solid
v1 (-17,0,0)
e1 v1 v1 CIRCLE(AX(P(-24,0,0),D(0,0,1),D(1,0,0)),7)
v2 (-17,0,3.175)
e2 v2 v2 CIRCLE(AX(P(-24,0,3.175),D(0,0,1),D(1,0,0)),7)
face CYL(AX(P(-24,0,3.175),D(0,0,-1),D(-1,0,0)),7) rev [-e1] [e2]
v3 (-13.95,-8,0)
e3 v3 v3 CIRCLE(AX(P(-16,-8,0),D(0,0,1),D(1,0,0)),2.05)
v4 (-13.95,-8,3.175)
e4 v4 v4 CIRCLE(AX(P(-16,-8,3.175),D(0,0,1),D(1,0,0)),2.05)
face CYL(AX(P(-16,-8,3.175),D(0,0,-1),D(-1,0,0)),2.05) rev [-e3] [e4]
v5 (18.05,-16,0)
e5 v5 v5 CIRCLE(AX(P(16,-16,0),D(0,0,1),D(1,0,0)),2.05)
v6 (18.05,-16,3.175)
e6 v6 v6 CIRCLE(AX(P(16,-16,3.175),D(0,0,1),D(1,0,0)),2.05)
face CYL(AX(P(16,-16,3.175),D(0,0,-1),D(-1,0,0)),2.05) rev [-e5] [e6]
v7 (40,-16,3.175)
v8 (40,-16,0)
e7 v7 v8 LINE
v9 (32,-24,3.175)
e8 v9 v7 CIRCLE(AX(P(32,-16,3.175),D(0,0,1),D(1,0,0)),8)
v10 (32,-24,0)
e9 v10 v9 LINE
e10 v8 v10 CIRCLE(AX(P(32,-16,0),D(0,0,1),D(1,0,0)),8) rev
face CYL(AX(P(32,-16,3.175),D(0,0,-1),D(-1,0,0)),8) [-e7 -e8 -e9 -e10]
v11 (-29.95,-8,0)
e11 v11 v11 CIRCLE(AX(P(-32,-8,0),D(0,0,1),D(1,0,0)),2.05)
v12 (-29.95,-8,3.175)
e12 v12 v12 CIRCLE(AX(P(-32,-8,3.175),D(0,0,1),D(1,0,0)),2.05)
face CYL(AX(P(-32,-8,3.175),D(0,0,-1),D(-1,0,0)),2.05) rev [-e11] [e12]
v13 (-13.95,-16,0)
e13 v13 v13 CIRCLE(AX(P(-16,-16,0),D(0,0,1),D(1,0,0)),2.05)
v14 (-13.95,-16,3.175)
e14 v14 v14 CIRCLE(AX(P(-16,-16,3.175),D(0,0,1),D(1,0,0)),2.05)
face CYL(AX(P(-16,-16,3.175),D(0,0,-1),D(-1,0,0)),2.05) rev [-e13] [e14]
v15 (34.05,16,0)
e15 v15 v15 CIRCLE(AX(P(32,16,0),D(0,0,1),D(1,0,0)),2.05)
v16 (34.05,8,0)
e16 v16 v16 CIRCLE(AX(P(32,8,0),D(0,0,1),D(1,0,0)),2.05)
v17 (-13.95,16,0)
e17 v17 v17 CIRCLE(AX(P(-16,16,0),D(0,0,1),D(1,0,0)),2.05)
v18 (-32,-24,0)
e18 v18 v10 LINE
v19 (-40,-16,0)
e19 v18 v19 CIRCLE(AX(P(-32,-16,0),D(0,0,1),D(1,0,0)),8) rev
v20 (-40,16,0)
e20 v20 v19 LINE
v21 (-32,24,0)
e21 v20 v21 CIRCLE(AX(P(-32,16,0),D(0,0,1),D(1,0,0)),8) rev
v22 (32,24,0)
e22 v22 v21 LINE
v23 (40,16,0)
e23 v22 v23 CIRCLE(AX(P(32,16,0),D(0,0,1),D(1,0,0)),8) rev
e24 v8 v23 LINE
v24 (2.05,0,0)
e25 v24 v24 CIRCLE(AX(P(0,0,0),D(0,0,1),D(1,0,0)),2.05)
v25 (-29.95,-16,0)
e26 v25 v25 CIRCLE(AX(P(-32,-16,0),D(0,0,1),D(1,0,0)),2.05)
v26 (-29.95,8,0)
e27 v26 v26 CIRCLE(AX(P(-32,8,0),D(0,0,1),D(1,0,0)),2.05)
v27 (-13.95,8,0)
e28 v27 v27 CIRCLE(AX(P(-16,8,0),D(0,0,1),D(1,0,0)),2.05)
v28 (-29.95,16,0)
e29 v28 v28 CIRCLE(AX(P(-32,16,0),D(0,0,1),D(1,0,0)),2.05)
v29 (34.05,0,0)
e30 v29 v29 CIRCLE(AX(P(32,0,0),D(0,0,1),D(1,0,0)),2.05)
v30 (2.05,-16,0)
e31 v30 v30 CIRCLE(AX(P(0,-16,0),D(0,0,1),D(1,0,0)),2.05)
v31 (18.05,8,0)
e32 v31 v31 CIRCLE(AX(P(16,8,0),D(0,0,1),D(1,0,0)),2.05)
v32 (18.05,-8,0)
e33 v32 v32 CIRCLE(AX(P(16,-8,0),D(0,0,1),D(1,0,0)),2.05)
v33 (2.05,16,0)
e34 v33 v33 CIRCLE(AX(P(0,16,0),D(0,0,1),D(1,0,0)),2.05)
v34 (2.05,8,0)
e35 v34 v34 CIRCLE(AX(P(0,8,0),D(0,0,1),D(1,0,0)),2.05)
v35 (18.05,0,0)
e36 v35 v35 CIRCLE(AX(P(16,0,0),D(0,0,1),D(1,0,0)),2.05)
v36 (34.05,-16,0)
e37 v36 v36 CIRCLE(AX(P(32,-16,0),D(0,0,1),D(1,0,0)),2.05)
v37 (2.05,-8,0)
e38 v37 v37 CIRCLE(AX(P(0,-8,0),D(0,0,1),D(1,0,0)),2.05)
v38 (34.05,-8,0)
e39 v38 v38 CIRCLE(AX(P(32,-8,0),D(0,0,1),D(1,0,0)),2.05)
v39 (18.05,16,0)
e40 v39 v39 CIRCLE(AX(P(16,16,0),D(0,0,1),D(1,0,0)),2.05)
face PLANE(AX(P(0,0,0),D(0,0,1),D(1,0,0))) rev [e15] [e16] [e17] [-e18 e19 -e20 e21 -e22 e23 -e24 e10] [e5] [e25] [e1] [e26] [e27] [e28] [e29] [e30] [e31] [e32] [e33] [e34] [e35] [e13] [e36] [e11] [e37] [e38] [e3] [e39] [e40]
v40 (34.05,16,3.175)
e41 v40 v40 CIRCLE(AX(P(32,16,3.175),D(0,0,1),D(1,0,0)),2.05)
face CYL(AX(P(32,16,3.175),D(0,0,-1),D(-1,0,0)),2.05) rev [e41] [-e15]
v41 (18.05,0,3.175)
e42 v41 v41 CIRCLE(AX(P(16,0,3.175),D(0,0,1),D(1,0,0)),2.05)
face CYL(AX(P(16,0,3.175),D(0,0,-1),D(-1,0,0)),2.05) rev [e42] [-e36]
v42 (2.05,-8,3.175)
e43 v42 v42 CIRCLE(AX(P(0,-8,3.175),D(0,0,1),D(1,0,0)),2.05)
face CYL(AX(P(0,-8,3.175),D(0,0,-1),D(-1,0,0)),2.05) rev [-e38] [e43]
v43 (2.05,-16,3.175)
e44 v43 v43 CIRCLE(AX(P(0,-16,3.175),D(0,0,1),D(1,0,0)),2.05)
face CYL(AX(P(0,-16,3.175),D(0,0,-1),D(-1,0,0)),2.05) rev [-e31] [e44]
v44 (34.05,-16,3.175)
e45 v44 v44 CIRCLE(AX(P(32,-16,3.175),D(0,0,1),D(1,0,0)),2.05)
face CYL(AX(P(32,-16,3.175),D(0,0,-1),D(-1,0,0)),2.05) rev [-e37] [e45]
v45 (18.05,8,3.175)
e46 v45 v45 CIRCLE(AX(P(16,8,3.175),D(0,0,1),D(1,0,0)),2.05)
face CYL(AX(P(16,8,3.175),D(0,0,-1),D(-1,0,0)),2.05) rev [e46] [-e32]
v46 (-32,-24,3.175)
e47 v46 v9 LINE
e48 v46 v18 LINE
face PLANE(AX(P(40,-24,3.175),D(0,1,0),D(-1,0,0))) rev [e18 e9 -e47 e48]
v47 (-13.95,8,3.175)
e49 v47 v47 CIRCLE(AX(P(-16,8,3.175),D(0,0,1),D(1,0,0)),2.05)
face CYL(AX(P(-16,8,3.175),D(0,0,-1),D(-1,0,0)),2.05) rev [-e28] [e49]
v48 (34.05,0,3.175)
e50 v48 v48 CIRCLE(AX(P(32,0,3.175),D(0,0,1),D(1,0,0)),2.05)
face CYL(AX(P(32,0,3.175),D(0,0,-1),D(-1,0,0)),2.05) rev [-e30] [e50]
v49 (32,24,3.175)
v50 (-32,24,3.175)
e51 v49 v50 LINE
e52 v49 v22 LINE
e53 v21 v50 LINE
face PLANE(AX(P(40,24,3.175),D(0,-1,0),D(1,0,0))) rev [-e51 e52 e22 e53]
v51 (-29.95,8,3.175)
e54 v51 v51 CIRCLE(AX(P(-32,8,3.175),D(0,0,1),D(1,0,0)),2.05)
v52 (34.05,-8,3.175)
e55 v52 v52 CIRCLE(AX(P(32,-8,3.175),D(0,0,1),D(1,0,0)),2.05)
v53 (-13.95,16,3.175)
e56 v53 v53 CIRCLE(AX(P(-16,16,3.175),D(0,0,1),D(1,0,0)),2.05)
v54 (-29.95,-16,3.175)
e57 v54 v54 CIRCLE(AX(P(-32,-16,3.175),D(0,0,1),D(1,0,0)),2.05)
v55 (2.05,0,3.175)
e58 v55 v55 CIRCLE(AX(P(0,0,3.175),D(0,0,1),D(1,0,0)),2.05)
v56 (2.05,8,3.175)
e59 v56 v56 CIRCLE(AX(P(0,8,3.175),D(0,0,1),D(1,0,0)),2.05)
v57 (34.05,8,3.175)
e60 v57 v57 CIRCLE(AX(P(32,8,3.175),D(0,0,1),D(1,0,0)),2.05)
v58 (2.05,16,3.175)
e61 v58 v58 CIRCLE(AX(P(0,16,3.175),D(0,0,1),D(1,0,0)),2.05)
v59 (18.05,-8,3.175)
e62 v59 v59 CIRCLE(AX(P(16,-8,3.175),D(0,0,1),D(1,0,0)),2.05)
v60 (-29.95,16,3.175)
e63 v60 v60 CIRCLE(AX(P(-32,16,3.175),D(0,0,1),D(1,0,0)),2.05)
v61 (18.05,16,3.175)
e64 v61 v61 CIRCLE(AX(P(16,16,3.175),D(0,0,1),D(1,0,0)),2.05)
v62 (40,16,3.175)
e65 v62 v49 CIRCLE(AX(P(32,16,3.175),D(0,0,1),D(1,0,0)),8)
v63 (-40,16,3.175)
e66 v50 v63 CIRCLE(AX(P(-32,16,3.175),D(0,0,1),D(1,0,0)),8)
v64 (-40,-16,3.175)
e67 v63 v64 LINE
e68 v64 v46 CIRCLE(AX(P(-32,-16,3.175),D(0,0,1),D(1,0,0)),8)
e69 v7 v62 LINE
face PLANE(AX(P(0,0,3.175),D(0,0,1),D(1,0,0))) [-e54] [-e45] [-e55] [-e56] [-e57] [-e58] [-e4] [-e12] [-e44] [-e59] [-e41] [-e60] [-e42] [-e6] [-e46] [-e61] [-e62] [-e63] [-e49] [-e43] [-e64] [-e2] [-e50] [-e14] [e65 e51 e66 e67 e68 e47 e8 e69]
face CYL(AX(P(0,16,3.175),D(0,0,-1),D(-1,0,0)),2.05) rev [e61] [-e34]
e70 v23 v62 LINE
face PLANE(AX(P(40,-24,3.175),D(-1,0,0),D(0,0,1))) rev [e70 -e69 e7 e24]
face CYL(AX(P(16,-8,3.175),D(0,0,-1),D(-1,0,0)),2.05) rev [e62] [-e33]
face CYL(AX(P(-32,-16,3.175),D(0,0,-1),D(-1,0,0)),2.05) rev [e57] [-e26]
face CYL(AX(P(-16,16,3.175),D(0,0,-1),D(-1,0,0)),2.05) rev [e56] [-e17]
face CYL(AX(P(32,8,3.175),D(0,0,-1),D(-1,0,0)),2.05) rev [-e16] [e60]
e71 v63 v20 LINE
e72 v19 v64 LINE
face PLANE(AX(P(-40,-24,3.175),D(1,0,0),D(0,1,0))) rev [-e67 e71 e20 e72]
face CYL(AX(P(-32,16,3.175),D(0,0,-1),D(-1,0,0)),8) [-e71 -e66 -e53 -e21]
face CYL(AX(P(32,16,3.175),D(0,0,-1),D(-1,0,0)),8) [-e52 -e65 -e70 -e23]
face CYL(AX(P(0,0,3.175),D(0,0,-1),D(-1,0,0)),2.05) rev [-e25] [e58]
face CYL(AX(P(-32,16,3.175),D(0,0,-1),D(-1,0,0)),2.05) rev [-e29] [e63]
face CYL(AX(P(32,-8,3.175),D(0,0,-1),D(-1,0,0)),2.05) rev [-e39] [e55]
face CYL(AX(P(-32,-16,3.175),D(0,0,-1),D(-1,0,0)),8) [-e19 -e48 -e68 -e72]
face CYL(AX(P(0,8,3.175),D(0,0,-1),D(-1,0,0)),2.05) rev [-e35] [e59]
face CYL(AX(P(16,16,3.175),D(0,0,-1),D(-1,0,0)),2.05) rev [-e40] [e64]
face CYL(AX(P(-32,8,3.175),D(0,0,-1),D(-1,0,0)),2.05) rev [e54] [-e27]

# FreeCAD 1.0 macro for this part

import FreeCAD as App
import Part
import Sketcher

V = App.Vector


def edges_at(feature, points):
    """Names of the edges that pass closest to the given points."""
    edges = feature.Shape.Edges
    near = lambda p: min(range(len(edges)), key=lambda i: edges[i].distToShape(Part.Vertex(*p))[0])
    return sorted({f"Edge{near(p) + 1}" for p in points})


def add_polygon(sketch, points):
    """Adds a closed chain of lines whose ends are joined by coincident constraints."""
    first, n = sketch.GeometryCount, len(points)
    for a, b in zip(points, points[1:] + points[:1]):
        sketch.addGeometry(Part.LineSegment(App.Vector(*a, 0), App.Vector(*b, 0)), False)
    for i in range(n):
        sketch.addConstraint(Sketcher.Constraint("Coincident", first + i, 2, first + (i + 1) % n, 1))

doc = App.newDocument("Part")
body = doc.addObject("PartDesign::Body", "Body")

# Sketch on XY plane
sketch1 = doc.addObject("Sketcher::SketchObject", "Sketch")
body.addObject(sketch1)
sketch1.AttachmentSupport = (doc.XY_Plane, [""])
sketch1.MapMode = "FlatFace"
add_polygon(sketch1, [(-40, 24), (-40, -24), (40, -24), (40, 24)])  # lines 0-3
sketch1.addGeometry(Part.Circle(V(-32, -16, 0), V(0, 0, 1), 2), False)  # 4
sketch1.addGeometry(Part.Circle(V(-16, -16, 0), V(0, 0, 1), 2), False)  # 5
sketch1.addGeometry(Part.Circle(V(-32, -8, 0), V(0, 0, 1), 2), False)  # 6
sketch1.addGeometry(Part.Circle(V(-16, -8, 0), V(0, 0, 1), 2), False)  # 7
sketch1.addGeometry(Part.Circle(V(0, -16, 0), V(0, 0, 1), 2), False)  # 8
sketch1.addGeometry(Part.Circle(V(16, -16, 0), V(0, 0, 1), 2), False)  # 9
sketch1.addGeometry(Part.Circle(V(32, -16, 0), V(0, 0, 1), 2), False)  # 10
sketch1.addGeometry(Part.Circle(V(0, -8, 0), V(0, 0, 1), 2), False)  # 11
sketch1.addGeometry(Part.Circle(V(16, -8, 0), V(0, 0, 1), 2), False)  # 12
sketch1.addGeometry(Part.Circle(V(32, -8, 0), V(0, 0, 1), 2), False)  # 13
sketch1.addGeometry(Part.Circle(V(-24, 0, 0), V(0, 0, 1), 7), False)  # 14
sketch1.addGeometry(Part.Circle(V(-32, 8, 0), V(0, 0, 1), 2), False)  # 15
sketch1.addGeometry(Part.Circle(V(-16, 8, 0), V(0, 0, 1), 2), False)  # 16
sketch1.addGeometry(Part.Circle(V(-32, 16, 0), V(0, 0, 1), 2), False)  # 17
sketch1.addGeometry(Part.Circle(V(-16, 16, 0), V(0, 0, 1), 2), False)  # 18
sketch1.addGeometry(Part.Circle(V(0, 0, 0), V(0, 0, 1), 2), False)  # 19
sketch1.addGeometry(Part.Circle(V(16, 0, 0), V(0, 0, 1), 2), False)  # 20
sketch1.addGeometry(Part.Circle(V(0, 8, 0), V(0, 0, 1), 2), False)  # 21
sketch1.addGeometry(Part.Circle(V(16, 8, 0), V(0, 0, 1), 2), False)  # 22
sketch1.addGeometry(Part.Circle(V(32, 0, 0), V(0, 0, 1), 2), False)  # 23
sketch1.addGeometry(Part.Circle(V(32, 8, 0), V(0, 0, 1), 2), False)  # 24
sketch1.addGeometry(Part.Circle(V(0, 16, 0), V(0, 0, 1), 2), False)  # 25
sketch1.addGeometry(Part.Circle(V(16, 16, 0), V(0, 0, 1), 2), False)  # 26
sketch1.addGeometry(Part.Circle(V(32, 16, 0), V(0, 0, 1), 2), False)  # 27
sketch1.addConstraint([
    Sketcher.Constraint("Vertical", 0),
    Sketcher.Constraint("Horizontal", 1),
    Sketcher.Constraint("Vertical", 2),
    Sketcher.Constraint("Horizontal", 3),
    Sketcher.Constraint("Coincident", 19, 3, -1, 1),
    Sketcher.Constraint("Equal", 4, 5),
    Sketcher.Constraint("Equal", 5, 6),
    Sketcher.Constraint("Equal", 6, 7),
    Sketcher.Constraint("Equal", 7, 8),
    Sketcher.Constraint("Equal", 8, 9),
    Sketcher.Constraint("Equal", 9, 10),
    Sketcher.Constraint("Equal", 10, 11),
    Sketcher.Constraint("Equal", 11, 12),
    Sketcher.Constraint("Equal", 12, 13),
    Sketcher.Constraint("Equal", 13, 15),
    Sketcher.Constraint("Equal", 15, 16),
    Sketcher.Constraint("Equal", 16, 17),
    Sketcher.Constraint("Equal", 17, 18),
    Sketcher.Constraint("Equal", 18, 19),
    Sketcher.Constraint("Equal", 19, 20),
    Sketcher.Constraint("Equal", 20, 21),
    Sketcher.Constraint("Equal", 21, 22),
    Sketcher.Constraint("Equal", 22, 23),
    Sketcher.Constraint("Equal", 23, 24),
    Sketcher.Constraint("Equal", 24, 25),
    Sketcher.Constraint("Equal", 25, 26),
    Sketcher.Constraint("Equal", 26, 27),
    Sketcher.Constraint("Symmetric", 13, 3, 15, 3, -1, 1),
    Sketcher.Constraint("Symmetric", 12, 3, 16, 3, -1, 1),
    Sketcher.Constraint("Symmetric", 10, 3, 17, 3, -1, 1),
    Sketcher.Constraint("Symmetric", 9, 3, 18, 3, -1, 1),
    Sketcher.Constraint("Symmetric", 11, 3, 21, 3, -1, 1),
    Sketcher.Constraint("Symmetric", 7, 3, 22, 3, -1, 1),
    Sketcher.Constraint("Symmetric", 6, 3, 24, 3, -1, 1),
    Sketcher.Constraint("Symmetric", 8, 3, 25, 3, -1, 1),
    Sketcher.Constraint("Symmetric", 5, 3, 26, 3, -1, 1),
    Sketcher.Constraint("Symmetric", 4, 3, 27, 3, -1, 1),
    Sketcher.Constraint("Symmetric", 0, 2, 2, 2, -1, 1),
    Sketcher.Constraint("Symmetric", 5, 3, 9, 3, -2),
    Sketcher.Constraint("Symmetric", 4, 3, 10, 3, -2),
    Sketcher.Constraint("Symmetric", 7, 3, 12, 3, -2),
    Sketcher.Constraint("Symmetric", 6, 3, 13, 3, -2),
    Sketcher.Constraint("PointOnObject", 8, 3, -2),
    Sketcher.Constraint("PointOnObject", 11, 3, -2),
    Sketcher.Constraint("PointOnObject", 14, 3, -1),
    Sketcher.Constraint("PointOnObject", 20, 3, -1),
    Sketcher.Constraint("PointOnObject", 23, 3, -1),
    Sketcher.Constraint("Horizontal", 4, 3, 5, 3),
    Sketcher.Constraint("Horizontal", 6, 3, 7, 3),
    Sketcher.Constraint("Horizontal", 5, 3, 8, 3),
    Sketcher.Constraint("Horizontal", 7, 3, 11, 3),
    Sketcher.Constraint("Vertical", 4, 3, 6, 3),
    Sketcher.Constraint("Vertical", 5, 3, 7, 3),
    Sketcher.Constraint("Vertical", 12, 3, 20, 3),
    Sketcher.Constraint("Vertical", 13, 3, 23, 3),
    Sketcher.Constraint("Diameter", 14, 14.0),
    Sketcher.Constraint("Diameter", 4, 4.1),
    Sketcher.Constraint("DistanceX", 1, 1, 1, 2, 80.0),
    Sketcher.Constraint("DistanceY", 0, 2, 0, 1, 48.0),
    Sketcher.Constraint("DistanceX", 4, 3, -1, 1, 32.0),
    Sketcher.Constraint("DistanceY", 4, 3, -1, 1, 16.0),
    Sketcher.Constraint("DistanceX", 5, 3, -1, 1, 16.0),
    Sketcher.Constraint("DistanceY", 6, 3, -1, 1, 8.0),
    Sketcher.Constraint("DistanceX", 14, 3, -1, 1, 24.0),
])
pad1 = doc.addObject("PartDesign::Pad", "Pad")
body.addObject(pad1)
pad1.Profile = sketch1
pad1.Length = 3.175
doc.recompute()

fillet = doc.addObject("PartDesign::Fillet", "Fillet")
body.addObject(fillet)
fillet.Base = (pad1, edges_at(pad1, [
    (-40, 24, 1.587),
    (40, 24, 1.587),
    (40, -24, 1.587),
    (-40, -24, 1.587),
]))
fillet.Radius = 8

doc.recompute()
